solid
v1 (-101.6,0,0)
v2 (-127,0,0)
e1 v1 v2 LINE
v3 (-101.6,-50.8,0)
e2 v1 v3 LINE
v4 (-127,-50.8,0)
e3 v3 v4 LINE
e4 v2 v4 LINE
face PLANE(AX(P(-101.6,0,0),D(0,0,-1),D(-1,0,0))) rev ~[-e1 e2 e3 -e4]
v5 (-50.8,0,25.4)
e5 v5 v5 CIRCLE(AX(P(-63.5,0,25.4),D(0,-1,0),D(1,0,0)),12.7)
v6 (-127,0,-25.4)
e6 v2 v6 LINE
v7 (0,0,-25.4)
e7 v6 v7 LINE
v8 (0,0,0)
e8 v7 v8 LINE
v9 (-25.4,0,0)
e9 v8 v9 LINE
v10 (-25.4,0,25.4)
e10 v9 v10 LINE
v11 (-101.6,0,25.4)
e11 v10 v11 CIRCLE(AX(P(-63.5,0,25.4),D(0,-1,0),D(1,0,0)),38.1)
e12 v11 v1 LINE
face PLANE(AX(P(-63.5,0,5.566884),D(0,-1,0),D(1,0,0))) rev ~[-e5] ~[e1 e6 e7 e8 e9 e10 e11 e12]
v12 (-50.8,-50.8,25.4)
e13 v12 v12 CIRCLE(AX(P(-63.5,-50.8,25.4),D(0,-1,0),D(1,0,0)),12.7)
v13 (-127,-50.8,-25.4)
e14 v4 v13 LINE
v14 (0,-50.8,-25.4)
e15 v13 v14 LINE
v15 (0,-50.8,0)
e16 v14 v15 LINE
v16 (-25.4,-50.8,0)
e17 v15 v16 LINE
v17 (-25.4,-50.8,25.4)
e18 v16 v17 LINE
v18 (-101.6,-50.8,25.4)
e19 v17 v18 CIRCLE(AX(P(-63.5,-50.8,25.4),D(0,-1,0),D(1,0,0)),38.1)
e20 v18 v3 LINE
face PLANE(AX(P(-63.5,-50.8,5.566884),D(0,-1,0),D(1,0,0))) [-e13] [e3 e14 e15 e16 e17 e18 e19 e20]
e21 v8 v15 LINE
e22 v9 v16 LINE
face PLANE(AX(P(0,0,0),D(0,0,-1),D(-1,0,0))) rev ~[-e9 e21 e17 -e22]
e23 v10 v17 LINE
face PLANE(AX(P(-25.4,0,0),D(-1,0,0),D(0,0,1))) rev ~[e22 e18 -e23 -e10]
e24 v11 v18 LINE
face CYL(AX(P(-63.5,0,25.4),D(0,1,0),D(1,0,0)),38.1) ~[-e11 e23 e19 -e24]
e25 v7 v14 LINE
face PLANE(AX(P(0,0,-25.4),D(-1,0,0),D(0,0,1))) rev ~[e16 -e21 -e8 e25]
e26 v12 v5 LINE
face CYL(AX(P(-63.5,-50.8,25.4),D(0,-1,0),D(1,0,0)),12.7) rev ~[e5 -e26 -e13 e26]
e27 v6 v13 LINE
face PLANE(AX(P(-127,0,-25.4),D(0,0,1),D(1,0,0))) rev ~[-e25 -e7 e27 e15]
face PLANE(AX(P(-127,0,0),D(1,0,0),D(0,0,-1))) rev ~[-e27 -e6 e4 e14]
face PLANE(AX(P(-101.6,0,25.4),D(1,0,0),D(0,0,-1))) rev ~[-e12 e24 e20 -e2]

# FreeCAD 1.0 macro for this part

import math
import FreeCAD as App
import Part
import Sketcher
from FreeCAD import Vector
Q = App.Units.Quantity

doc = App.newDocument("Part")
params = doc.addObject("Spreadsheet::Sheet", "Params")
for row, (alias, value) in enumerate([
    ("sketch1_radius", "1.5 in"),
    ("sketch1_width", "1 in"),
    ("pad1_length", "2 in"),
    ("sketch2_diameter", "1 in"),
], start=1):
    params.set(f"A{row}", alias)
    params.set(f"B{row}", "=" + value)
    params.setAlias(f"B{row}", alias)

body = doc.addObject("PartDesign::Body", "Body")

# Sketch on XZ plane
sketch1 = body.newObject("Sketcher::SketchObject", "Sketch")
sketch1.AttachmentSupport = (doc.getObject("XZ_Plane"), [""])
sketch1.MapMode = "FlatFace"
sketch1.addGeometry([
    Part.LineSegment(Vector(0, -25, 0), Vector(0, 0, 0)),  # 0
    Part.LineSegment(Vector(0, 0, 0), Vector(-25, 0, 0)),  # 1
    Part.LineSegment(Vector(-25, 0, 0), Vector(-25, 25, 0)),  # 2
    Part.ArcOfCircle(Part.Circle(Vector(-64, 25, 0), Vector(0, 0, 1), 38), math.radians(0), math.radians(180)),  # 3
    Part.LineSegment(Vector(-102, 25, 0), Vector(-102, 0, 0)),  # 4
    Part.LineSegment(Vector(-102, 0, 0), Vector(-127, 0, 0)),  # 5
    Part.LineSegment(Vector(-127, 0, 0), Vector(-127, -25, 0)),  # 6
    Part.LineSegment(Vector(-127, -25, 0), Vector(0, -25, 0)),  # 7
], False)
sketch1.addConstraint([
    Sketcher.Constraint("Coincident", 0, 2, 1, 1),
    Sketcher.Constraint("Coincident", 1, 2, 2, 1),
    Sketcher.Constraint("Tangent", 2, 2, 3, 1),
    Sketcher.Constraint("Tangent", 3, 2, 4, 1),
    Sketcher.Constraint("Coincident", 4, 2, 5, 1),
    Sketcher.Constraint("Coincident", 5, 2, 6, 1),
    Sketcher.Constraint("Coincident", 6, 2, 7, 1),
    Sketcher.Constraint("Coincident", 7, 2, 0, 1),
    Sketcher.Constraint("Vertical", 0),
    Sketcher.Constraint("Horizontal", 1),
    Sketcher.Constraint("Vertical", 2),
    Sketcher.Constraint("Vertical", 4),
    Sketcher.Constraint("Horizontal", 5),
    Sketcher.Constraint("Vertical", 6),
    Sketcher.Constraint("Horizontal", 7),
    Sketcher.Constraint("Coincident", 0, 2, -1, 1),
    Sketcher.Constraint("PointOnObject", 4, 2, -1),
    Sketcher.Constraint("Equal", 1, 5),
    Sketcher.Constraint("Equal", 5, 0),
    Sketcher.Constraint("Equal", 0, 2),
    Sketcher.Constraint("Radius", 3, Q("1.5 in")),
    Sketcher.Constraint("DistanceX", 1, 2, 1, 1, Q("1 in")),
])
sketch1.setExpression("Constraints[20]", "Params.sketch1_radius")
sketch1.setExpression("Constraints[21]", "Params.sketch1_width")
pad1 = body.newObject("PartDesign::Pad", "Pad")
pad1.Profile = sketch1
pad1.setExpression("Length", "Params.pad1_length")

# Sketch on XZ plane
sketch2 = body.newObject("Sketcher::SketchObject", "Sketch001")
sketch2.AttachmentSupport = (doc.getObject("XZ_Plane"), [""])
sketch2.MapMode = "FlatFace"
sketch2.AttachmentOffset = App.Placement(Vector(0, 0, 2 * 25.4), App.Rotation())
sketch2.addGeometry(Part.Circle(Vector(-64, 25, 0), Vector(0, 0, 1), 13), False)
sketch2.addConstraint([
    Sketcher.Constraint("Diameter", 0, Q("1 in")),
    Sketcher.Constraint("DistanceY", -1, 1, 0, 3, Q("1 in")),
    Sketcher.Constraint("DistanceX", 0, 3, -1, 1, Q("2.5 in")),
])
sketch2.setExpression("Constraints[0]", "Params.sketch2_diameter")
pocket1 = body.newObject("PartDesign::Pocket", "Pocket")
pocket1.Profile = sketch2
pocket1.Type = "ThroughAll"

doc.recompute()
